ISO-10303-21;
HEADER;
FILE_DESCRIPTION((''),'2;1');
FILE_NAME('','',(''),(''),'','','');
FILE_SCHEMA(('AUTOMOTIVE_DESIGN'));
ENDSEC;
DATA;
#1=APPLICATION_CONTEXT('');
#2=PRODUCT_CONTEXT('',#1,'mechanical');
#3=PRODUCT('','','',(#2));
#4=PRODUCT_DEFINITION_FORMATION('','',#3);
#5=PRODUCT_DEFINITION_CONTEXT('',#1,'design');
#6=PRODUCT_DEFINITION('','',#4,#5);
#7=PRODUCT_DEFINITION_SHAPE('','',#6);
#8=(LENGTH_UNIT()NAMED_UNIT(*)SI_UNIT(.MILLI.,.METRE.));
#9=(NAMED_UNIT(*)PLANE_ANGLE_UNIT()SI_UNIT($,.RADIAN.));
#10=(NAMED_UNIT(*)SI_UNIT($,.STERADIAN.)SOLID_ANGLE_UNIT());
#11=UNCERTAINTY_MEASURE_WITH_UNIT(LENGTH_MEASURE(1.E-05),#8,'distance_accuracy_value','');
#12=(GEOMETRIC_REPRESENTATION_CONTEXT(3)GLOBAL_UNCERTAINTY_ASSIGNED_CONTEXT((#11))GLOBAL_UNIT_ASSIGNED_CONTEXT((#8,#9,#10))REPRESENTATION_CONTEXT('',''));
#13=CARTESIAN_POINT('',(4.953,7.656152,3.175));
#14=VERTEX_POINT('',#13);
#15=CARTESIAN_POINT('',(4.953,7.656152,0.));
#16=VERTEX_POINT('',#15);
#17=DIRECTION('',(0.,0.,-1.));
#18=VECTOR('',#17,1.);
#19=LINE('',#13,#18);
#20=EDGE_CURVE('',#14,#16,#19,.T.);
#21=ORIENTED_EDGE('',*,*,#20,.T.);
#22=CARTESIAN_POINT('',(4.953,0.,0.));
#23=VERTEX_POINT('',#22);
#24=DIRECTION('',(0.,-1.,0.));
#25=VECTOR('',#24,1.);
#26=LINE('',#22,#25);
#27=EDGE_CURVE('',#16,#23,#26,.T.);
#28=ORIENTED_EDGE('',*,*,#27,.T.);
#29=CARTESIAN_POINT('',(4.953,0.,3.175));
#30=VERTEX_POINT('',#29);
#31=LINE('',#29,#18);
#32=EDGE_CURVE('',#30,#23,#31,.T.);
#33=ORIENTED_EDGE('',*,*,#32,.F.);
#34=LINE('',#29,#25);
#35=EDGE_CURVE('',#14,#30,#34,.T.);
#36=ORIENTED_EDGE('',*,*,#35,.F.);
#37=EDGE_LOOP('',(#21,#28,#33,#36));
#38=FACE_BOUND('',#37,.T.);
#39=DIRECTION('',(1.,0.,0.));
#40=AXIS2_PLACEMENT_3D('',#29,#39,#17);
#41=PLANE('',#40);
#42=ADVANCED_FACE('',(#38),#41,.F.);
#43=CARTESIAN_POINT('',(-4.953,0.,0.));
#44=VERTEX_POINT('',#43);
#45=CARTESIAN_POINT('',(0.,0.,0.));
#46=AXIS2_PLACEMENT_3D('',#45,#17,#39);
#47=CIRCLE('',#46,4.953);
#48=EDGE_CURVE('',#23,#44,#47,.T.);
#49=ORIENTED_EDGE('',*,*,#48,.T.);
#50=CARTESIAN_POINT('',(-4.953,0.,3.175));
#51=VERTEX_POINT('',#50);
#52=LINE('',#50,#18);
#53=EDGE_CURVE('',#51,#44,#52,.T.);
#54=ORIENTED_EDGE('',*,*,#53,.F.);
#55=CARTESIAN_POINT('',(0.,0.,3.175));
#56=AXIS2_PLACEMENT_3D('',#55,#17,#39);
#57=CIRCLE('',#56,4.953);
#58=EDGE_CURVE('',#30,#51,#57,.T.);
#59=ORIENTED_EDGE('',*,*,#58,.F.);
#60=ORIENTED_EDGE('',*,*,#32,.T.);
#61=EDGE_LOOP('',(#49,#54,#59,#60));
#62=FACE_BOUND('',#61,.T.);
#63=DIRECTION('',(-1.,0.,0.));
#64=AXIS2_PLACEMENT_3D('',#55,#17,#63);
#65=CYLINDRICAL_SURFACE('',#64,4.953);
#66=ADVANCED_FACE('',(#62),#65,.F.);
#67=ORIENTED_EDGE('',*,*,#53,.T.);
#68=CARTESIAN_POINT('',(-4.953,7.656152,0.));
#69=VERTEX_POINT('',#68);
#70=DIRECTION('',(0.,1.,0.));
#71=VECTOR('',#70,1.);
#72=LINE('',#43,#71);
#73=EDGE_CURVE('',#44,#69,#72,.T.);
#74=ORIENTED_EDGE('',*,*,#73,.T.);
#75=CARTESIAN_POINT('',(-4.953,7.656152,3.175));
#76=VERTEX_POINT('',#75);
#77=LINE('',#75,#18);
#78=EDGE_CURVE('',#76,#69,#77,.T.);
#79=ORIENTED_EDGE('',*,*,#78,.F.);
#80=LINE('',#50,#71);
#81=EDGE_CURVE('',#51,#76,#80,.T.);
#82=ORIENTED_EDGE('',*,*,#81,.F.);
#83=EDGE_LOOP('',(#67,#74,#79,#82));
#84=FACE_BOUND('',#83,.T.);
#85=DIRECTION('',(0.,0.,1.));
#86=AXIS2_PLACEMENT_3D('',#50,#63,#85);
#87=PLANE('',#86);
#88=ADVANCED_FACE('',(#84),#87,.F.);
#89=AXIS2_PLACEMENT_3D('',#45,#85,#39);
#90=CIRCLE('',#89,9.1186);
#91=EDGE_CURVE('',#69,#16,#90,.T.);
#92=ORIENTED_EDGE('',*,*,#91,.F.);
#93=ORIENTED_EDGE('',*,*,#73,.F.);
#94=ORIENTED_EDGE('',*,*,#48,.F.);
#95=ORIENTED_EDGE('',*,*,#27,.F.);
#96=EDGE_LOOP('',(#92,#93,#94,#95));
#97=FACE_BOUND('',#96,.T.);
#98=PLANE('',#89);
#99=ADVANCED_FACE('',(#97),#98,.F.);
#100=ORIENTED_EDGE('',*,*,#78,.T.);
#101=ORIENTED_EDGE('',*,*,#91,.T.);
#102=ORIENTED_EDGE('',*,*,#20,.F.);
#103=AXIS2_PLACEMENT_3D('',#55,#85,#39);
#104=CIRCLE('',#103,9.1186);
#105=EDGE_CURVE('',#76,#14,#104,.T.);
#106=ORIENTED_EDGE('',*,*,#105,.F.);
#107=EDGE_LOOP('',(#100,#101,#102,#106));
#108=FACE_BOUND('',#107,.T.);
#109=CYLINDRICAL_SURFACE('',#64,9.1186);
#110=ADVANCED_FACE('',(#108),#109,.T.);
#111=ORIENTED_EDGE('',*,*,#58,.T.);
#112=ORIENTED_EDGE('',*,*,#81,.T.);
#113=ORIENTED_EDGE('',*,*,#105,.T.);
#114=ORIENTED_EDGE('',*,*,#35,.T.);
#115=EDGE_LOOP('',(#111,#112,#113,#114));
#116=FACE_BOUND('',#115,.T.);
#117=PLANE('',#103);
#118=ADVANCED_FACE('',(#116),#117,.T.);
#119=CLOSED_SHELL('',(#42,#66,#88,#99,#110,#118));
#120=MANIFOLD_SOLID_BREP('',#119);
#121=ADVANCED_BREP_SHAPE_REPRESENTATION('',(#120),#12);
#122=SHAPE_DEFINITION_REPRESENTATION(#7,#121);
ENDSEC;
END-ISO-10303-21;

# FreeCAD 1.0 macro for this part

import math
import FreeCAD as App
import Part
import Sketcher

V = App.Vector
Q = App.Units.Quantity

doc = App.newDocument("Part")
params = doc.addObject("Spreadsheet::Sheet", "Params")
for row, (alias, value) in enumerate([
    ("sketch1_radius", "0.359 in"),
    ("sketch1_radius2", "0.195 in"),
    ("pad1_length", "0.125 in"),
], start=1):
    params.set(f"A{row}", alias)
    params.set(f"B{row}", "=" + value)
    params.setAlias(f"B{row}", alias)

body = doc.addObject("PartDesign::Body", "Body")

sketch1 = doc.addObject("Sketcher::SketchObject", "Sketch")
body.addObject(sketch1)
sketch1.AttachmentSupport = (doc.XY_Plane, [""])
sketch1.MapMode = "FlatFace"
sketch1.addGeometry([
    Part.LineSegment(V(-5, 0, 0), V(-5, 7.7, 0)),
    Part.ArcOfCircle(Part.Circle(V(0, 0, 0), V(0, 0, 1), 9.1), math.radians(123), math.radians(417)),
    Part.LineSegment(V(5, 7.7, 0), V(5, 0, 0)),
    Part.ArcOfCircle(Part.Circle(V(0, 0, 0), V(0, 0, 1), 5), math.radians(180), math.radians(360)),
], False)
sketch1.addConstraint([
    Sketcher.Constraint("Coincident", 0, 2, 1, 1),
    Sketcher.Constraint("Coincident", 1, 2, 2, 1),
    Sketcher.Constraint("Tangent", 2, 2, 3, 2),
    Sketcher.Constraint("Tangent", 3, 1, 0, 1),
    Sketcher.Constraint("Vertical", 0),
    Sketcher.Constraint("Vertical", 2),
    Sketcher.Constraint("Coincident", 1, 3, -1, 1),
    Sketcher.Constraint("Coincident", 3, 3, -1, 1),
    Sketcher.Constraint("Radius", 1, Q("0.359 in")),
    Sketcher.Constraint("Radius", 3, Q("0.195 in")),
])
sketch1.setExpression("Constraints[8]", "Params.sketch1_radius")
sketch1.setExpression("Constraints[9]", "Params.sketch1_radius2")
pad1 = doc.addObject("PartDesign::Pad", "Pad")
body.addObject(pad1)
pad1.Profile = sketch1
pad1.setExpression("Length", "Params.pad1_length")

doc.recompute()
